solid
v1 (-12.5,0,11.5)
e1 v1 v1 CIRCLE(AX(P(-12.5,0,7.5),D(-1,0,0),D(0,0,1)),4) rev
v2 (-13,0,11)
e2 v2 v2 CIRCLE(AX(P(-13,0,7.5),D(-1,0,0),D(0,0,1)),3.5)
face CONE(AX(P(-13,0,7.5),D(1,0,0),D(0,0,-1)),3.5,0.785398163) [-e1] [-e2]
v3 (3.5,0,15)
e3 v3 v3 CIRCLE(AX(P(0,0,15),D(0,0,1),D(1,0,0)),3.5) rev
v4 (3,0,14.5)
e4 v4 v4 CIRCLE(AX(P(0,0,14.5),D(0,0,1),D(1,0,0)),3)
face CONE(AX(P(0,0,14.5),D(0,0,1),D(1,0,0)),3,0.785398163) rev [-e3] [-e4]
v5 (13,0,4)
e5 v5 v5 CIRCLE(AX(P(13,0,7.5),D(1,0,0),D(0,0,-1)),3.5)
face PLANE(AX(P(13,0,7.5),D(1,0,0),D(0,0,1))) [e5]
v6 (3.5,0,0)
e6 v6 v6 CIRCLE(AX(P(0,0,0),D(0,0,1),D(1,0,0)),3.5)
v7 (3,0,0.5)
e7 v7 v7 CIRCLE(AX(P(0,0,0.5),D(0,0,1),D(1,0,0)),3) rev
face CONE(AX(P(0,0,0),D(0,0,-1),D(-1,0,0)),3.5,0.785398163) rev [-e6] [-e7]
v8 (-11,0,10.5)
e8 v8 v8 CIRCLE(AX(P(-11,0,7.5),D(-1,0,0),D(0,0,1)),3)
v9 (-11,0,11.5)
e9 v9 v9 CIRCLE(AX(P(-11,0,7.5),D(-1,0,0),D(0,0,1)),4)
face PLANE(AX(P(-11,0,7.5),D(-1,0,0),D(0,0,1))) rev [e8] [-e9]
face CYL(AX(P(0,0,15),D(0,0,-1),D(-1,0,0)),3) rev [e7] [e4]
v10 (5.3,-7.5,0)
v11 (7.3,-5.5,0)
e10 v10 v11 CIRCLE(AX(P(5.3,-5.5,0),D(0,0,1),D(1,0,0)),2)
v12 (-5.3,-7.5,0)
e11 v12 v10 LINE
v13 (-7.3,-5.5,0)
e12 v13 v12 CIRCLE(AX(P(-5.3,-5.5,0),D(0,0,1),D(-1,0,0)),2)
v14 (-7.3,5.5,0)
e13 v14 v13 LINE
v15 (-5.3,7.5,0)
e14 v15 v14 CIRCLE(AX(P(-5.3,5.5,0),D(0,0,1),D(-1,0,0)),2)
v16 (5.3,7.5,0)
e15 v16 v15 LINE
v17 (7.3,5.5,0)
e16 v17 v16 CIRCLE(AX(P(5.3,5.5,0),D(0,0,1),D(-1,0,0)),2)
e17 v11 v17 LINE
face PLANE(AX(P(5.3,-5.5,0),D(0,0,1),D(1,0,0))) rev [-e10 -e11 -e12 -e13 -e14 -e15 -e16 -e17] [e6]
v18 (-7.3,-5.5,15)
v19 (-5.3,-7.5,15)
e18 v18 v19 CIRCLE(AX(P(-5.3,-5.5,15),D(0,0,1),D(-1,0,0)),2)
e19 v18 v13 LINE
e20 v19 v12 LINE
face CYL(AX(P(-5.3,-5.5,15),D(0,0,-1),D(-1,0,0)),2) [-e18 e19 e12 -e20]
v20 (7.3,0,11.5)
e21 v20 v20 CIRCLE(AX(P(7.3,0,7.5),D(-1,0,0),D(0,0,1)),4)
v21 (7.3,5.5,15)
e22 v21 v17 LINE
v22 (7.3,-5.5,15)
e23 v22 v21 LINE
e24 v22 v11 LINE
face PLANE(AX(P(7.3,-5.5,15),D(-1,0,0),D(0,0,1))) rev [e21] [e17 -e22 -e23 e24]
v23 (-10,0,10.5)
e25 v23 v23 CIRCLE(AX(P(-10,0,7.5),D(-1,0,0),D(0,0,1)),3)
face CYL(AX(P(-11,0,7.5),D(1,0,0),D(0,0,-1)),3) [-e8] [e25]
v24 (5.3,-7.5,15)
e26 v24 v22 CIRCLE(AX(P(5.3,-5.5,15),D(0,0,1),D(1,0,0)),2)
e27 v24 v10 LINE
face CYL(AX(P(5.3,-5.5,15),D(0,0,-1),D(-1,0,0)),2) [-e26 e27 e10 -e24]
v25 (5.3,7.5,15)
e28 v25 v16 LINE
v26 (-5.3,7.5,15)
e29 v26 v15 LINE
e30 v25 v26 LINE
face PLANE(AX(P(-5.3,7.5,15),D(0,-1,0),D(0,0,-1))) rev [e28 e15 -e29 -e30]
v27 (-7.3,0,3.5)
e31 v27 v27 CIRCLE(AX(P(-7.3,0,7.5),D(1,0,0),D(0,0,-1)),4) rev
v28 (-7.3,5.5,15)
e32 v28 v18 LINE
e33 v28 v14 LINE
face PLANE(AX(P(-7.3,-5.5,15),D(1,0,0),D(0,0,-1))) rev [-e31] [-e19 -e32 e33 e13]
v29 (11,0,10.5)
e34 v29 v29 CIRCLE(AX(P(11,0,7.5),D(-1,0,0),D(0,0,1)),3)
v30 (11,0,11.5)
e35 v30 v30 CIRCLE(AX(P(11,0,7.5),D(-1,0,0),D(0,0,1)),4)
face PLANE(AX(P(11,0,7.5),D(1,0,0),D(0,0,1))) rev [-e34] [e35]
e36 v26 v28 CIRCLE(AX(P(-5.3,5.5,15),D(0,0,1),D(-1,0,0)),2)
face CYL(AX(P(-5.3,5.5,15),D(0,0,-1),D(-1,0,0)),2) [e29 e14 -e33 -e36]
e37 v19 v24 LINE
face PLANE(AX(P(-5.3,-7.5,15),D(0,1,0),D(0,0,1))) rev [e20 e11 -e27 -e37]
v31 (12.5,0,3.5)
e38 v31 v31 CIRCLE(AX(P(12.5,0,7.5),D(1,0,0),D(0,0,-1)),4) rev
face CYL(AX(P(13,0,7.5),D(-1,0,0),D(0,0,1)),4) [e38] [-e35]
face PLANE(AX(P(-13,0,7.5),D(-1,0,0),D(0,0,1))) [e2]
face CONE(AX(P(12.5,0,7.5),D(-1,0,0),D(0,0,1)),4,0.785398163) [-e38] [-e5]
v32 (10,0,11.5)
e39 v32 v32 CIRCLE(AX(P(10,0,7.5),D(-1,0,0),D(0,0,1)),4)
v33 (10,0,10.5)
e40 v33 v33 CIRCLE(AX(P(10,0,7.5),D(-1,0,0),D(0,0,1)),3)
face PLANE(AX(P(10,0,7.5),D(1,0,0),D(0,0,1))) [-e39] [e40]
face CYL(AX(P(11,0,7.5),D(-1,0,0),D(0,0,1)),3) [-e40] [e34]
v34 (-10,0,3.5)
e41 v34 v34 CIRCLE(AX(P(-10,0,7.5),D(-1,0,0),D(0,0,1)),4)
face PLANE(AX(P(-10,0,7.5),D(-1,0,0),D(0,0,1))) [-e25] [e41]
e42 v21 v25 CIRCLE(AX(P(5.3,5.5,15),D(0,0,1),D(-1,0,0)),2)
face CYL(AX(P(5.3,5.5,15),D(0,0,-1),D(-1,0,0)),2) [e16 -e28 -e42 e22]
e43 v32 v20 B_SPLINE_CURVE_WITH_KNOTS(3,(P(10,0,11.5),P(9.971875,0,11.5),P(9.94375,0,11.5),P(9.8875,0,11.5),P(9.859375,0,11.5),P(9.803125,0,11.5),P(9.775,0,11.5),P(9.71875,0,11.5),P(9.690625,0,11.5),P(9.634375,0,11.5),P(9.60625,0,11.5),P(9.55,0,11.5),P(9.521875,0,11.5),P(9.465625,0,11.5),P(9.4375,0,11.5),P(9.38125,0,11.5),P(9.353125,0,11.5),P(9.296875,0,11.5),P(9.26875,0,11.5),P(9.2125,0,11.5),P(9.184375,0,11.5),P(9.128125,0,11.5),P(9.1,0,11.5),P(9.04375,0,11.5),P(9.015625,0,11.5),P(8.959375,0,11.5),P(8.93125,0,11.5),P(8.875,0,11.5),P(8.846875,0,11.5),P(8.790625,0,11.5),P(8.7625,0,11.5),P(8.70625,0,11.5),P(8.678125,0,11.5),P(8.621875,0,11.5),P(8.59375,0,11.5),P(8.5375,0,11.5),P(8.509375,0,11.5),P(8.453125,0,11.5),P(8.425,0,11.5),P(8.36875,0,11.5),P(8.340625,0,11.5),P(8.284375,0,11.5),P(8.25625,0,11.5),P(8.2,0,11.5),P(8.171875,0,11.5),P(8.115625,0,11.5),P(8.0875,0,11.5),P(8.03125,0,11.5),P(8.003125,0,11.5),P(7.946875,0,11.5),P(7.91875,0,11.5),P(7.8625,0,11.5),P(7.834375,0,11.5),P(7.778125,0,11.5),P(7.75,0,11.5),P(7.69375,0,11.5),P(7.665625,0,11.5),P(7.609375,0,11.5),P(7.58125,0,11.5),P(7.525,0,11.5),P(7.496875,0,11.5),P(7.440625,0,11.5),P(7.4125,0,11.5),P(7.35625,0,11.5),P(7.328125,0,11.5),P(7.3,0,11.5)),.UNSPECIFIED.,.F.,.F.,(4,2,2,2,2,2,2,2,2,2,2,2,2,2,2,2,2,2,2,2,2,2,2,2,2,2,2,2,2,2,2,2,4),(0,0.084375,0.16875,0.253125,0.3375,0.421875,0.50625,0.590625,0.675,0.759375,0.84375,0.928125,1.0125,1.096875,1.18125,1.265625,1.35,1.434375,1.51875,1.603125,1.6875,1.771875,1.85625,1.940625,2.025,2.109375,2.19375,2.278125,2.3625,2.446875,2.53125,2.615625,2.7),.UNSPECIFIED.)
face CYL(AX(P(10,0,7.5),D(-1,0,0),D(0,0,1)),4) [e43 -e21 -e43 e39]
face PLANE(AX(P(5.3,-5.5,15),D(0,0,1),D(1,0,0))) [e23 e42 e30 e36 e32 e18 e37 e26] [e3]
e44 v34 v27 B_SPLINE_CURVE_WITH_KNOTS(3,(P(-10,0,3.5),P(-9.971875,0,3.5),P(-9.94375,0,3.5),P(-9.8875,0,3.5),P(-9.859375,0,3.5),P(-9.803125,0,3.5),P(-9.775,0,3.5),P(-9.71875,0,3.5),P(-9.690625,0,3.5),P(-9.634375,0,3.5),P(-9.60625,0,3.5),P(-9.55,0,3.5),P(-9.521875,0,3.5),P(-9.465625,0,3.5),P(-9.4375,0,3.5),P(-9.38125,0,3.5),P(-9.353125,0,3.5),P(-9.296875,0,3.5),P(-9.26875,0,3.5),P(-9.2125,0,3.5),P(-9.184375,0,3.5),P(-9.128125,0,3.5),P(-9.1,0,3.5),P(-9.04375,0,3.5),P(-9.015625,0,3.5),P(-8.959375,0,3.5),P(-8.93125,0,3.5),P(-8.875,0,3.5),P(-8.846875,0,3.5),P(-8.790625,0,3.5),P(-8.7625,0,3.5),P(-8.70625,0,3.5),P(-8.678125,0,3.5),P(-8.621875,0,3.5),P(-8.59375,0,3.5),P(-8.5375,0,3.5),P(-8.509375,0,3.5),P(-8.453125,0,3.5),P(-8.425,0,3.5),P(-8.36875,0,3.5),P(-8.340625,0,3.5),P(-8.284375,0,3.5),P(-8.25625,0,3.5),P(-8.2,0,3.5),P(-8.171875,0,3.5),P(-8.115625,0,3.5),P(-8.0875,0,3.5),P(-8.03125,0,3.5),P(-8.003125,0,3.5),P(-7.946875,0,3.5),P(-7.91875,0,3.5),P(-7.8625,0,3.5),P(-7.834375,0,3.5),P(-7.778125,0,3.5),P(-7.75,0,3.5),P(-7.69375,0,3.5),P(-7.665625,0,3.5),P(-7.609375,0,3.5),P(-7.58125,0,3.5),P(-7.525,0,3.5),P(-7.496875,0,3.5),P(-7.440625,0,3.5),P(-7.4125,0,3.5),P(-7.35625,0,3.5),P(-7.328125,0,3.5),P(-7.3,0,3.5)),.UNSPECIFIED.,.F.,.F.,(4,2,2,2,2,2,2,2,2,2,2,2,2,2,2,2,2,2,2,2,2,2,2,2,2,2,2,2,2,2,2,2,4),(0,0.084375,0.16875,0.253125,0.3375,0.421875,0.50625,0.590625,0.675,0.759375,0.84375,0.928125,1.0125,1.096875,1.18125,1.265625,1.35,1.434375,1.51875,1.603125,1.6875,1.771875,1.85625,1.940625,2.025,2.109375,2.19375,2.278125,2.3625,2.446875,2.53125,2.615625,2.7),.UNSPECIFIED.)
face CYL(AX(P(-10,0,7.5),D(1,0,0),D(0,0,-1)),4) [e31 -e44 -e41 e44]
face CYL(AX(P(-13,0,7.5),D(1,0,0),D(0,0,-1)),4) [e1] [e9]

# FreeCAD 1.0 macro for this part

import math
import FreeCAD as App
import Part
import Sketcher
from FreeCAD import Vector
Q = App.Units.Quantity


def edges_at(feature, points):
    """Names of the edges that pass closest to the given points."""
    edges = feature.Shape.Edges
    near = lambda p: min(range(len(edges)), key=lambda i: edges[i].distToShape(Part.Vertex(*p))[0])
    return sorted({f"Edge{near(p) + 1}" for p in points})

doc = App.newDocument("Part")
params = doc.addObject("Spreadsheet::Sheet", "Params")
for row, (alias, value) in enumerate([
    ("sketch1_diameter", "6 mm"),
    ("sketch1_radius", "2 mm"),
    ("sketch1_height", "11 mm"),
    ("sketch1_width", "10.6 mm"),
    ("pad1_length", "15 mm"),
    ("sketch2_diameter", "8 mm"),
    ("pad2_length", "2.7 mm"),
    ("sketch3_diameter", "6 mm"),
    ("pad3_length", "1 mm"),
    ("sketch4_diameter", "8 mm"),
    ("pad4_length", "2 mm"),
    ("chamfer_size", "0.5 mm"),
    ("chamfer2_size", "0.5 mm"),
    ("chamfer3_size", "0.5 mm"),
], start=1):
    params.set(f"A{row}", alias)
    params.set(f"B{row}", "=" + value)
    params.setAlias(f"B{row}", alias)

body = doc.addObject("PartDesign::Body", "Body")

sketch1 = body.newObject("Sketcher::SketchObject", "Sketch")
sketch1.AttachmentSupport = (doc.getObject("XY_Plane"), [""])
sketch1.MapMode = "FlatFace"
sketch1.addGeometry([
    Part.LineSegment(Vector(-5.3, -7.5, 0), Vector(5.3, -7.5, 0)),
    Part.ArcOfCircle(Part.Circle(Vector(5.3, -5.5, 0), Vector(0, 0, 1), 2), math.radians(-90), math.radians(0)),
    Part.LineSegment(Vector(7.3, -5.5, 0), Vector(7.3, 5.5, 0)),
    Part.ArcOfCircle(Part.Circle(Vector(5.3, 5.5, 0), Vector(0, 0, 1), 2), math.radians(0), math.radians(90)),
    Part.LineSegment(Vector(5.3, 7.5, 0), Vector(-5.3, 7.5, 0)),
    Part.ArcOfCircle(Part.Circle(Vector(-5.3, 5.5, 0), Vector(0, 0, 1), 2), math.radians(90), math.radians(180)),
    Part.LineSegment(Vector(-7.3, 5.5, 0), Vector(-7.3, -5.5, 0)),
    Part.ArcOfCircle(Part.Circle(Vector(-5.3, -5.5, 0), Vector(0, 0, 1), 2), math.radians(-180), math.radians(-90)),
    Part.Circle(Vector(0, 0, 0), Vector(0, 0, 1), 3),
], False)
sketch1.addConstraint([
    Sketcher.Constraint("Tangent", 0, 2, 1, 1),
    Sketcher.Constraint("Tangent", 1, 2, 2, 1),
    Sketcher.Constraint("Tangent", 2, 2, 3, 1),
    Sketcher.Constraint("Tangent", 3, 2, 4, 1),
    Sketcher.Constraint("Tangent", 4, 2, 5, 1),
    Sketcher.Constraint("Tangent", 5, 2, 6, 1),
    Sketcher.Constraint("Tangent", 6, 2, 7, 1),
    Sketcher.Constraint("Tangent", 7, 2, 0, 1),
    Sketcher.Constraint("Horizontal", 0),
    Sketcher.Constraint("Vertical", 2),
    Sketcher.Constraint("Horizontal", 4),
    Sketcher.Constraint("Vertical", 6),
    Sketcher.Constraint("Coincident", 8, 3, -1, 1),
    Sketcher.Constraint("Equal", 1, 3),
    Sketcher.Constraint("Equal", 3, 5),
    Sketcher.Constraint("Equal", 5, 7),
    Sketcher.Constraint("Symmetric", 1, 3, 5, 3, -1, 1),
    Sketcher.Constraint("Diameter", 8, Q("6 mm")),
    Sketcher.Constraint("Radius", 1, Q("2 mm")),
    Sketcher.Constraint("DistanceY", 2, 1, 2, 2, Q("11 mm")),
    Sketcher.Constraint("DistanceX", 0, 1, 0, 2, Q("10.6 mm")),
])
sketch1.setExpression("Constraints[17]", "Params.sketch1_diameter")
sketch1.setExpression("Constraints[18]", "Params.sketch1_radius")
sketch1.setExpression("Constraints[19]", "Params.sketch1_height")
sketch1.setExpression("Constraints[20]", "Params.sketch1_width")
pad1 = body.newObject("PartDesign::Pad", "Pad")
pad1.Profile = sketch1
pad1.setExpression("Length", "Params.pad1_length")

sketch2 = body.newObject("Sketcher::SketchObject", "Sketch001")
sketch2.AttachmentSupport = (doc.getObject("YZ_Plane"), [""])
sketch2.MapMode = "FlatFace"
sketch2.AttachmentOffset = App.Placement(Vector(0, 0, -7.3), App.Rotation())
sketch2.addGeometry(Part.Circle(Vector(0, 7.5, 0), Vector(0, 0, 1), 4), False)
sketch2.addConstraint([
    Sketcher.Constraint("PointOnObject", 0, 3, -2),
    Sketcher.Constraint("Diameter", 0, Q("8 mm")),
    Sketcher.Constraint("DistanceY", -1, 1, 0, 3, Q("7.5 mm")),
])
sketch2.setExpression("Constraints[1]", "Params.sketch2_diameter")
pad2 = body.newObject("PartDesign::Pad", "Pad001")
pad2.Profile = sketch2
pad2.setExpression("Length", "Params.pad2_length")
pad2.Reversed = True

sketch3 = body.newObject("Sketcher::SketchObject", "Sketch002")
sketch3.AttachmentSupport = (doc.getObject("YZ_Plane"), [""])
sketch3.MapMode = "FlatFace"
sketch3.AttachmentOffset = App.Placement(Vector(0, 0, -10), App.Rotation())
sketch3.addGeometry(Part.Circle(Vector(0, 7.5, 0), Vector(0, 0, 1), 3), False)
sketch3.addConstraint([
    Sketcher.Constraint("PointOnObject", 0, 3, -2),
    Sketcher.Constraint("Diameter", 0, Q("6 mm")),
    Sketcher.Constraint("DistanceY", -1, 1, 0, 3, Q("7.5 mm")),
])
sketch3.setExpression("Constraints[1]", "Params.sketch3_diameter")
pad3 = body.newObject("PartDesign::Pad", "Pad002")
pad3.Profile = sketch3
pad3.setExpression("Length", "Params.pad3_length")
pad3.Reversed = True

sketch4 = body.newObject("Sketcher::SketchObject", "Sketch003")
sketch4.AttachmentSupport = (doc.getObject("YZ_Plane"), [""])
sketch4.MapMode = "FlatFace"
sketch4.AttachmentOffset = App.Placement(Vector(0, 0, -11), App.Rotation())
sketch4.addGeometry(Part.Circle(Vector(0, 7.5, 0), Vector(0, 0, 1), 4), False)
sketch4.addConstraint([
    Sketcher.Constraint("PointOnObject", 0, 3, -2),
    Sketcher.Constraint("Diameter", 0, Q("8 mm")),
    Sketcher.Constraint("DistanceY", -1, 1, 0, 3, Q("7.5 mm")),
])
sketch4.setExpression("Constraints[1]", "Params.sketch4_diameter")
pad4 = body.newObject("PartDesign::Pad", "Pad003")
pad4.Profile = sketch4
pad4.setExpression("Length", "Params.pad4_length")
pad4.Reversed = True
doc.recompute()

chamfer = body.newObject("PartDesign::Chamfer", "Chamfer")
chamfer.Base = (pad4, edges_at(pad4, [(-13, 0, 11.5)]))
chamfer.setExpression("Size", "Params.chamfer_size")
doc.recompute()

mirrored = body.newObject("PartDesign::Mirrored", "Mirrored")
mirrored.Originals = [pad2, pad3, pad4]
mirrored.MirrorPlane = (doc.getObject("YZ_Plane"), [""])
body.Tip = mirrored
doc.recompute()

chamfer2 = body.newObject("PartDesign::Chamfer", "Chamfer001")
chamfer2.Base = (mirrored, edges_at(mirrored, [(13, 0, 11.5)]))
chamfer2.setExpression("Size", "Params.chamfer2_size")
doc.recompute()

chamfer3 = body.newObject("PartDesign::Chamfer", "Chamfer002")
chamfer3.Base = (chamfer2, edges_at(chamfer2, [(-3, 0, 0), (-3, 0, 15)]))
chamfer3.setExpression("Size", "Params.chamfer3_size")

doc.recompute()
